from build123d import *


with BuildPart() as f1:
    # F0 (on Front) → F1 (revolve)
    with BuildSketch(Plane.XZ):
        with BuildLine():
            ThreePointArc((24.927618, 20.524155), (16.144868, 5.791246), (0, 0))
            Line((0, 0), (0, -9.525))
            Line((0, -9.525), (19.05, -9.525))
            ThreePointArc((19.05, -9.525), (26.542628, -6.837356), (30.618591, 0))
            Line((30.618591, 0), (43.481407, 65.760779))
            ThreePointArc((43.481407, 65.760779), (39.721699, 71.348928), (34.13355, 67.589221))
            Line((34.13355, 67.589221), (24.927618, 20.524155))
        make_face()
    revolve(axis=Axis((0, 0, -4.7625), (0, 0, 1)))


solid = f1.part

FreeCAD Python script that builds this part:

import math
import FreeCAD as App
import Part
import Sketcher
Q = App.Units.Quantity

doc = App.newDocument("Part")
body = doc.addObject("PartDesign::Body", "Body")

# Sketch on XZ plane
sketch1 = doc.addObject("Sketcher::SketchObject", "Sketch")
body.addObject(sketch1)
sketch1.AttachmentSupport = (doc.XZ_Plane, [""])
sketch1.MapMode = "FlatFace"
sketch1.addGeometry([
    Part.ArcOfCircle(Part.Circle(App.Vector(0, 25.4, 0), App.Vector(0, 0, 1), 25.4), math.radians(-89.999999), math.radians(-11.067331)),  # 0
    Part.LineSegment(App.Vector(0, 0, 0), App.Vector(0, -9.525, 0)),  # 1
    Part.LineSegment(App.Vector(0, -9.525, 0), App.Vector(19.05, -9.525, 0)),  # 2
    Part.ArcOfCircle(Part.Circle(App.Vector(19.049999, 2.262819, 0), App.Vector(0, 0, 1), 11.787819), math.radians(-89.999995), math.radians(-11.067334)),  # 3
    Part.LineSegment(App.Vector(30.618591, 0, 0), App.Vector(43.481407, 65.760779, 0)),  # 4
    Part.ArcOfCircle(Part.Circle(App.Vector(38.807478, 66.674999, 0), App.Vector(0, 0, 1), 4.7625), math.radians(-11.067323), math.radians(168.932663)),  # 5
    Part.LineSegment(App.Vector(34.13355, 67.589221, 0), App.Vector(24.927618, 20.524155, 0)),  # 6
], False)
sketch1.addConstraint([
    Sketcher.Constraint("Coincident", 0, 1, 1, 1),
    Sketcher.Constraint("Coincident", 1, 2, 2, 1),
    Sketcher.Constraint("Tangent", 2, 2, 3, 1),
    Sketcher.Constraint("Tangent", 3, 2, 4, 1),
    Sketcher.Constraint("Tangent", 4, 2, 5, 1),
    Sketcher.Constraint("Tangent", 5, 2, 6, 1),
    Sketcher.Constraint("Tangent", 6, 2, 0, 2),
    Sketcher.Constraint("Vertical", 1),
    Sketcher.Constraint("Horizontal", 2),
    Sketcher.Constraint("Coincident", 0, 1, -1, 1),
    Sketcher.Constraint("PointOnObject", 0, 3, -2),
    Sketcher.Constraint("PointOnObject", 3, 2, -1),
    Sketcher.Constraint("Parallel", 4, 6),
    Sketcher.Constraint("Radius", 0, Q("1 in")),
    Sketcher.Constraint("Radius", 5, Q("0.1875 in")),
    Sketcher.Constraint("DistanceY", 1, 2, 5, 3, Q("3 in")),
    Sketcher.Constraint("DistanceX", 2, 1, 2, 2, Q("0.75 in")),
    Sketcher.Constraint("DistanceY", 1, 2, 1, 1, Q("0.375 in")),
])
revolution = doc.addObject("PartDesign::Revolution", "Revolution")
body.addObject(revolution)
revolution.Profile = sketch1
revolution.ReferenceAxis = (sketch1, ["V_Axis"])
revolution.Angle = 360

doc.recompute()
